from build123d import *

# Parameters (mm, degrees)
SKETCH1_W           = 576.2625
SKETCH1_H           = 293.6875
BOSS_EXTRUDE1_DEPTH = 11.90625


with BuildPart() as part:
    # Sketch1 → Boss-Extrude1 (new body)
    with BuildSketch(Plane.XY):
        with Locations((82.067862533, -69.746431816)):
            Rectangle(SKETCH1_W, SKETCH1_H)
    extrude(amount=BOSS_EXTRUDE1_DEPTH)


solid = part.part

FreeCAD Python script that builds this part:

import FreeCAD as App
import Part
import Sketcher
from FreeCAD import Vector
Q = App.Units.Quantity

doc = App.newDocument("Part")
body = doc.addObject("PartDesign::Body", "Body")

# Sketch on XY plane
sketch1 = doc.addObject("Sketcher::SketchObject", "Sketch")
body.addObject(sketch1)
sketch1.AttachmentSupport = (doc.XY_Plane, [""])
sketch1.MapMode = "FlatFace"
sketch1.addGeometry([
    Part.LineSegment(Vector(-206.063387, 77.097318, 0), Vector(-206.063387, -216.590182, 0)),
    Part.LineSegment(Vector(-206.063387, -216.590182, 0), Vector(370.199113, -216.590182, 0)),
    Part.LineSegment(Vector(370.199113, -216.590182, 0), Vector(370.199113, 77.097318, 0)),
    Part.LineSegment(Vector(370.199113, 77.097318, 0), Vector(-206.063387, 77.097318, 0)),
], False)
sketch1.addConstraint([
    Sketcher.Constraint("Coincident", 0, 2, 1, 1),
    Sketcher.Constraint("Coincident", 1, 2, 2, 1),
    Sketcher.Constraint("Coincident", 2, 2, 3, 1),
    Sketcher.Constraint("Coincident", 3, 2, 0, 1),
    Sketcher.Constraint("Vertical", 0),
    Sketcher.Constraint("Horizontal", 1),
    Sketcher.Constraint("Vertical", 2),
    Sketcher.Constraint("Horizontal", 3),
    Sketcher.Constraint("DistanceX", 1, 1, 1, 2, Q("22.6875 in")),
    Sketcher.Constraint("DistanceY", 0, 2, 0, 1, Q("11.5625 in")),
    Sketcher.Constraint("DistanceY", 0, 2, -1, 1, 216.590182),
    Sketcher.Constraint("DistanceX", 0, 2, -1, 1, 206.063387),
])
pad1 = doc.addObject("PartDesign::Pad", "Pad")
body.addObject(pad1)
pad1.Profile = sketch1
pad1.Length = Q("0.46875 in")

doc.recompute()
